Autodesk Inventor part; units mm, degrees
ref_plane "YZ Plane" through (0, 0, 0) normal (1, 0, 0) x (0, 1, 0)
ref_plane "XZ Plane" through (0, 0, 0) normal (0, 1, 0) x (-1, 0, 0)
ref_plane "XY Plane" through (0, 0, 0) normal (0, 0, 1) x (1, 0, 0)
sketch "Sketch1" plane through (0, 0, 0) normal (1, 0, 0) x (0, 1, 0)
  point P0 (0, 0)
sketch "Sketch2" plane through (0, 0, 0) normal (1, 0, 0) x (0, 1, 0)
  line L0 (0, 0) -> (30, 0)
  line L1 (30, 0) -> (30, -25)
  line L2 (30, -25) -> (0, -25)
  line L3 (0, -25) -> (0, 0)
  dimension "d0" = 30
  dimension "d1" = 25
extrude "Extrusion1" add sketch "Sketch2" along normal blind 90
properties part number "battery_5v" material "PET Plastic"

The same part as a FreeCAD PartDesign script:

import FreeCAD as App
import Part
import Sketcher
from FreeCAD import Vector


def add_polygon(sketch, points):
    """Adds a closed chain of lines whose ends are joined by coincident constraints."""
    first, n = sketch.GeometryCount, len(points)
    for a, b in zip(points, points[1:] + points[:1]):
        sketch.addGeometry(Part.LineSegment(App.Vector(*a, 0), App.Vector(*b, 0)), False)
    for i in range(n):
        sketch.addConstraint(Sketcher.Constraint("Coincident", first + i, 2, first + (i + 1) % n, 1))

doc = App.newDocument("Part")
body = doc.addObject("PartDesign::Body", "Body")

sketch1 = body.newObject("Sketcher::SketchObject", "Sketch")
sketch1.AttachmentSupport = (doc.getObject("YZ_Plane"), [""])
sketch1.MapMode = "FlatFace"
add_polygon(sketch1, [(30, 0), (0, 0), (0, -25), (30, -25)])
sketch1.addConstraint(Sketcher.Constraint("Horizontal", 0))
sketch1.addConstraint(Sketcher.Constraint("Vertical", 1))
sketch1.addConstraint(Sketcher.Constraint("Horizontal", 2))
sketch1.addConstraint(Sketcher.Constraint("Vertical", 3))
sketch1.addConstraint(Sketcher.Constraint("Coincident", 0, 2, -1, 1))
sketch1.addConstraint(Sketcher.Constraint("DistanceX", 0, 2, 0, 1, 30.0))
sketch1.addConstraint(Sketcher.Constraint("DistanceY", 1, 2, 1, 1, 25.0))
pad1 = body.newObject("PartDesign::Pad", "Pad")
pad1.Profile = sketch1
pad1.Length = 90

doc.recompute()
